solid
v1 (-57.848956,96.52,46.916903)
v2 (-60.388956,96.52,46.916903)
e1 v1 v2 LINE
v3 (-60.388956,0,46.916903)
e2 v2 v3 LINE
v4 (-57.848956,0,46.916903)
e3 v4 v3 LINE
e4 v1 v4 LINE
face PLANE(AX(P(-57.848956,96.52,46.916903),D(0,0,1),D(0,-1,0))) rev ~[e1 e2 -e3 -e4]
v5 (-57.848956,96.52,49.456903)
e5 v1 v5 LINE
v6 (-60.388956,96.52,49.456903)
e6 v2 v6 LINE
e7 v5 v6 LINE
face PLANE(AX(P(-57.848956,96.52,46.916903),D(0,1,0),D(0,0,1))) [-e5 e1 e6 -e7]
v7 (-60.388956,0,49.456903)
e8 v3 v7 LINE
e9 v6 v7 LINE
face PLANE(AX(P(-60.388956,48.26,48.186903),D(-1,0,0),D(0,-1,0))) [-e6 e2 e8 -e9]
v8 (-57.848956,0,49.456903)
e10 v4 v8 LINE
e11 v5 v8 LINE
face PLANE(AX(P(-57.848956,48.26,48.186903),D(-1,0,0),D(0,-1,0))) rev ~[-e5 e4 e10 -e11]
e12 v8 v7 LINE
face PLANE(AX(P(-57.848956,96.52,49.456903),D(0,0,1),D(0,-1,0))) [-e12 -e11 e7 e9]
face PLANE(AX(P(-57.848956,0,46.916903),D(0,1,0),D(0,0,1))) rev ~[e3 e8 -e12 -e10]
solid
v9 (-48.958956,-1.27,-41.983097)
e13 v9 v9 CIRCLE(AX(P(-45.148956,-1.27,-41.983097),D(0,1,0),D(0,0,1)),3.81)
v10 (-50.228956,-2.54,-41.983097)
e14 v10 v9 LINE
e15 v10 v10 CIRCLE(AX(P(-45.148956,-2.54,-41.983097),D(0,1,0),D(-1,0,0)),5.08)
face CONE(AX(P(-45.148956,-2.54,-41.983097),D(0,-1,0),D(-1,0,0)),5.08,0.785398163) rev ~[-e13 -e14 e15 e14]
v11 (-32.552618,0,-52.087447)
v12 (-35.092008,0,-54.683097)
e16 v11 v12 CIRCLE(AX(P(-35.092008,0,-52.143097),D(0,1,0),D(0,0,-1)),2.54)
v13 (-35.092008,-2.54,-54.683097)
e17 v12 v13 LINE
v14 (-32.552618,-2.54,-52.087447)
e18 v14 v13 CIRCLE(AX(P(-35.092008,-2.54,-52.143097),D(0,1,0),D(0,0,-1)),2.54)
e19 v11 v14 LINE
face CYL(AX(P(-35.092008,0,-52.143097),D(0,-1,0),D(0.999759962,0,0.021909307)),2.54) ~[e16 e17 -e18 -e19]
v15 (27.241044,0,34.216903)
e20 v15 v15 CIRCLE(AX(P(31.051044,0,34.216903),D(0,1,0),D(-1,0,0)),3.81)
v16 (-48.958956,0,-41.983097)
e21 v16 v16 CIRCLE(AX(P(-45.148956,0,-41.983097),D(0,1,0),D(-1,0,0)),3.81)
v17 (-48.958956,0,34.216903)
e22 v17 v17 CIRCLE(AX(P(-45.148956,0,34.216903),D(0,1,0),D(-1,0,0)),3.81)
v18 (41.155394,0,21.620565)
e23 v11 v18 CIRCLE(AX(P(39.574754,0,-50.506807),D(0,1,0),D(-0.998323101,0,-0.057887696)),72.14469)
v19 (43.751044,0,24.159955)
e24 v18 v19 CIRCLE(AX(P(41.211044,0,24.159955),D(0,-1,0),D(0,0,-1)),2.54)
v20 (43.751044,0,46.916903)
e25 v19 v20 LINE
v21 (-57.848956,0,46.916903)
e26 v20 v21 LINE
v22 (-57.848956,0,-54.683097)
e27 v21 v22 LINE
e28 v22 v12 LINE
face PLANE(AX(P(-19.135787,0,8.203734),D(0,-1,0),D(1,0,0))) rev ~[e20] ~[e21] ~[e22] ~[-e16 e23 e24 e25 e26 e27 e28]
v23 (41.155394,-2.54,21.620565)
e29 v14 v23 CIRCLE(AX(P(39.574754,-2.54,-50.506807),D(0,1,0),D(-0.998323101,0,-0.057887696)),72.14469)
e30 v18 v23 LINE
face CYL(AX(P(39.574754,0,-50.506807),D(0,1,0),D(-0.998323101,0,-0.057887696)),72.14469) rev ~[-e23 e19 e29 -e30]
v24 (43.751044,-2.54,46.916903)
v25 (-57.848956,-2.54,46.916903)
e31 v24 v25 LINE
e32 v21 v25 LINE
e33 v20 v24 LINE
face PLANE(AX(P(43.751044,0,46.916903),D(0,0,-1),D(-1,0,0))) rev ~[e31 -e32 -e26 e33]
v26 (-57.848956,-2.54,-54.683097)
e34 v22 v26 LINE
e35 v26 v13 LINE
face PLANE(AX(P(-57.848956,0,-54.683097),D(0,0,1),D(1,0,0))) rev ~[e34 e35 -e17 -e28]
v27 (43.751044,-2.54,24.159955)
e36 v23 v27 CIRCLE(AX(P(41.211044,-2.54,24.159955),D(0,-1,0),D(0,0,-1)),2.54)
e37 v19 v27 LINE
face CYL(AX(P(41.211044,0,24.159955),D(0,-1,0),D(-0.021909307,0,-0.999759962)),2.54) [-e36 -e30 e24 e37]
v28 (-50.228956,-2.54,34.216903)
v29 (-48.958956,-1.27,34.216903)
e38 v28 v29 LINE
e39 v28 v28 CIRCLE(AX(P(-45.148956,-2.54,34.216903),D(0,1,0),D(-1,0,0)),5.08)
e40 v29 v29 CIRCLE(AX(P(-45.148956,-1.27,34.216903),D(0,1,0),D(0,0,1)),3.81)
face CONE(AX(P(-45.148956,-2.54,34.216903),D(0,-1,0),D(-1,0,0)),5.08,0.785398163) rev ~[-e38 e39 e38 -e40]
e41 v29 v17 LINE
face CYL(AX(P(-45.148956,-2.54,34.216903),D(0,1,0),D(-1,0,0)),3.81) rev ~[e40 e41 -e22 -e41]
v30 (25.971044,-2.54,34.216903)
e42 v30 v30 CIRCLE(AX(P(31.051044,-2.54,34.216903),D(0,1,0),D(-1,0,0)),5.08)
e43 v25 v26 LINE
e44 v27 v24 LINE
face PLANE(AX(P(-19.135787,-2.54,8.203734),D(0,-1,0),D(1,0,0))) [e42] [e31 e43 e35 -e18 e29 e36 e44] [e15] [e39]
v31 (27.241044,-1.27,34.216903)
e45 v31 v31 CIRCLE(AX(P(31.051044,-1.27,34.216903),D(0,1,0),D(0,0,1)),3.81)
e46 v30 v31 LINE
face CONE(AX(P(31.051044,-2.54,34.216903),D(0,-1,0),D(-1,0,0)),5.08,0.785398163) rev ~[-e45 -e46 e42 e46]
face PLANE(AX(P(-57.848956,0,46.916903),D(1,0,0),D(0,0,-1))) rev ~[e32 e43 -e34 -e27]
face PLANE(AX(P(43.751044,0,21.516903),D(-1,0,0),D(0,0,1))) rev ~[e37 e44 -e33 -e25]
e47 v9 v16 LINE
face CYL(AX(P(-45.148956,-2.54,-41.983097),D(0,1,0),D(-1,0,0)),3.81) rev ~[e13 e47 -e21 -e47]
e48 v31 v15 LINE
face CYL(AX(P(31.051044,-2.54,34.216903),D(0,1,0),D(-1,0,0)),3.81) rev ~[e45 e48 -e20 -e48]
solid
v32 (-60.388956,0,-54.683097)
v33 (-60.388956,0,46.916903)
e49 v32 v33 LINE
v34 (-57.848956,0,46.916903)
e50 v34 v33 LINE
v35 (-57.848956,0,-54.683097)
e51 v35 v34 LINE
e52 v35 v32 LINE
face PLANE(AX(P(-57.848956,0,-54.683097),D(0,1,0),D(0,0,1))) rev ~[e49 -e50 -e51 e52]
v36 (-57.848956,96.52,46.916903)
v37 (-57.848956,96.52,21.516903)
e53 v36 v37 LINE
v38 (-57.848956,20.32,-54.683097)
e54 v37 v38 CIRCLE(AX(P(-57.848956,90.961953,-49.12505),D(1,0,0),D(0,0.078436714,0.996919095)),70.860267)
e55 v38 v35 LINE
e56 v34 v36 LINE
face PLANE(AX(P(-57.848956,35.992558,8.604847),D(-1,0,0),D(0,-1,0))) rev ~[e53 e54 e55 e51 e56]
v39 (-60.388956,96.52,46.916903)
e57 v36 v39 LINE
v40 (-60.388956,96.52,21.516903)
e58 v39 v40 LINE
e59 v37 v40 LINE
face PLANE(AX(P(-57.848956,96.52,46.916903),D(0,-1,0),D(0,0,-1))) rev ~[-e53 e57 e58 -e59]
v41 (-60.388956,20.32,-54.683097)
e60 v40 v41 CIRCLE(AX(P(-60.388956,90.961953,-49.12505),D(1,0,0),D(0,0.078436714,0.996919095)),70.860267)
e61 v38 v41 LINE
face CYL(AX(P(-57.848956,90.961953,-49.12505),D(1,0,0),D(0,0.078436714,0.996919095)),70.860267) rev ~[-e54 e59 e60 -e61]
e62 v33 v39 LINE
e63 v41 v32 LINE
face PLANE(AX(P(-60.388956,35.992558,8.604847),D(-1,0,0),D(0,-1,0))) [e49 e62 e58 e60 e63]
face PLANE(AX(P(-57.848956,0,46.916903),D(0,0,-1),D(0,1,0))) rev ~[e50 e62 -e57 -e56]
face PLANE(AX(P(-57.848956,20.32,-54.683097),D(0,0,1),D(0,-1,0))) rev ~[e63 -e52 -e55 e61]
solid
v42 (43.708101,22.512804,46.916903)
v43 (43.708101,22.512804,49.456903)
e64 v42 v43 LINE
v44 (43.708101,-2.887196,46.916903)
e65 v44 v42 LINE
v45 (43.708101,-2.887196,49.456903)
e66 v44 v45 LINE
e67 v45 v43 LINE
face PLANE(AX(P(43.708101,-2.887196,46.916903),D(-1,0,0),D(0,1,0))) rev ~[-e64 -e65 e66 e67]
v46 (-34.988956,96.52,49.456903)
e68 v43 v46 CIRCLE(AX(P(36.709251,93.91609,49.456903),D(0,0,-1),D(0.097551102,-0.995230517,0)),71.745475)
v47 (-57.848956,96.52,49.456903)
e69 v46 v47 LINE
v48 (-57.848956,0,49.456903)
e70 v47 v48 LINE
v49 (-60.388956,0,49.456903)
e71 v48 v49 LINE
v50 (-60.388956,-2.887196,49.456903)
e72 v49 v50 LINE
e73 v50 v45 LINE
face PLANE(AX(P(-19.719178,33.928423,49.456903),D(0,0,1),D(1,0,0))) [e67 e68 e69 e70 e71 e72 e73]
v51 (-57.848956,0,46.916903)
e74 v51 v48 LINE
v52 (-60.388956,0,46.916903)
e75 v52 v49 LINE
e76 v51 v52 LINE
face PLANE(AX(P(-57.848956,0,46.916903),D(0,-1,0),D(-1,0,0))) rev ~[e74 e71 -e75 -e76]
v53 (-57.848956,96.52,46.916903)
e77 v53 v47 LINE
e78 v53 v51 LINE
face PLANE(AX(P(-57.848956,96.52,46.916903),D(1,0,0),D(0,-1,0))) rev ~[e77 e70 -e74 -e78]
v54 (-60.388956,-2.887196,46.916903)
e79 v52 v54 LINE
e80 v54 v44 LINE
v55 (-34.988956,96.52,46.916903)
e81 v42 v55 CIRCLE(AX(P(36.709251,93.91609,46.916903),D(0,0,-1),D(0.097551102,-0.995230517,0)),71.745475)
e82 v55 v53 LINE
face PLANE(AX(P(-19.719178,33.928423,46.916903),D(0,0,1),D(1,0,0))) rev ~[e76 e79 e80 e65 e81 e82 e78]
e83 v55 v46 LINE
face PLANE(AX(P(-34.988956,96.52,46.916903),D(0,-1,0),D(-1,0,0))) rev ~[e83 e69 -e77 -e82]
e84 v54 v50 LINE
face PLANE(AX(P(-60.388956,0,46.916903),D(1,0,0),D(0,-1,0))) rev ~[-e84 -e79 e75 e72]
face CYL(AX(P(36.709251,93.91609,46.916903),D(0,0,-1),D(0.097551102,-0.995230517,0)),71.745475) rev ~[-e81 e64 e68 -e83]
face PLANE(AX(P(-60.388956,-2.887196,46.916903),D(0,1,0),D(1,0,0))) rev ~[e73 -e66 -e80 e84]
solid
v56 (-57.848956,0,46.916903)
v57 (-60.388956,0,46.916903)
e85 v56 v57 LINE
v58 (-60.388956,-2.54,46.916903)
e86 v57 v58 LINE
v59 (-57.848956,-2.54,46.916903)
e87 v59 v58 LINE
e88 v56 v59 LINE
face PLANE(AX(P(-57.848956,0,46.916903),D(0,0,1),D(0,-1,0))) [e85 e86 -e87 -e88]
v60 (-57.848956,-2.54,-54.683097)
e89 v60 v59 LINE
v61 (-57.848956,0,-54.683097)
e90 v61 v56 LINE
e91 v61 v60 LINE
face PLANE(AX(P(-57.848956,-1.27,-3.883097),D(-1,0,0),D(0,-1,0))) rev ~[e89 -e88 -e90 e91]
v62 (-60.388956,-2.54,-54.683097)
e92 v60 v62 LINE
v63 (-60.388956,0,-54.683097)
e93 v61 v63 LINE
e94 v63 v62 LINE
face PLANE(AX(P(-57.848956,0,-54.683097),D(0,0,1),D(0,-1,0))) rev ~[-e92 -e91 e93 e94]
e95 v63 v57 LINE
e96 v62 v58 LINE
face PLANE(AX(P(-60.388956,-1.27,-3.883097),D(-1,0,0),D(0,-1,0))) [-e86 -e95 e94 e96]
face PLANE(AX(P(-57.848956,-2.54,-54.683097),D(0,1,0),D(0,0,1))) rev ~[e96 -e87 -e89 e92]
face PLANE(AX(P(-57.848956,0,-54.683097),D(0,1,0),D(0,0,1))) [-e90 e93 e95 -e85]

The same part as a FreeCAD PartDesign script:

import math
import FreeCAD as App
import Part
import Sketcher
from FreeCAD import Vector
Q = App.Units.Quantity


def edges_at(feature, points):
    """Names of the edges that pass closest to the given points."""
    edges = feature.Shape.Edges
    near = lambda p: min(range(len(edges)), key=lambda i: edges[i].distToShape(Part.Vertex(*p))[0])
    return sorted({f"Edge{near(p) + 1}" for p in points})

doc = App.newDocument("Part")
body = doc.addObject("PartDesign::Body", "Body")

sketch1 = doc.addObject("Sketcher::SketchObject", "Sketch")
body.addObject(sketch1)
sketch1.AttachmentSupport = (doc.XZ_Plane, [""])
sketch1.MapMode = "FlatFace"
sketch1.addGeometry([
    Part.LineSegment(Vector(43.751044, 46.916903, 0), Vector(-57.848956, 46.916903, 0)),
    Part.LineSegment(Vector(-57.848956, 46.916903, 0), Vector(-57.848956, -54.683097, 0)),
    Part.LineSegment(Vector(-57.848956, -54.683097, 0), Vector(-32.448956, -54.683097, 0)),
    Part.ArcOfCircle(Part.Circle(Vector(39.574754, -50.506807, 0), Vector(0, 0, 1), 72.14469), math.radians(86.681424), math.radians(183.318576)),
    Part.LineSegment(Vector(43.751044, 21.516903, 0), Vector(43.751044, 46.916903, 0)),
], False)
sketch1.addConstraint([
    Sketcher.Constraint("Coincident", 0, 2, 1, 1),
    Sketcher.Constraint("Coincident", 1, 2, 2, 1),
    Sketcher.Constraint("Coincident", 2, 2, 3, 2),
    Sketcher.Constraint("Coincident", 3, 1, 4, 1),
    Sketcher.Constraint("Coincident", 4, 2, 0, 1),
    Sketcher.Constraint("Horizontal", 0),
    Sketcher.Constraint("Vertical", 1),
    Sketcher.Constraint("Horizontal", 2),
    Sketcher.Constraint("Vertical", 4),
    Sketcher.Constraint("Equal", 0, 1),
    Sketcher.Constraint("Equal", 2, 4),
    Sketcher.Constraint("DistanceX", 0, 2, 0, 1, Q("4 in")),
    Sketcher.Constraint("DistanceX", 2, 1, 2, 2, Q("1 in")),
    Sketcher.Constraint("Radius", 3, 72.14469),
    Sketcher.Constraint("DistanceX", -1, 1, 3, 3, 39.574754),
    Sketcher.Constraint("DistanceY", 3, 3, -1, 1, 50.506807),
])
pad1 = doc.addObject("PartDesign::Pad", "Pad")
body.addObject(pad1)
pad1.Profile = sketch1
pad1.Length = Q("0.1 in")
doc.recompute()

fillet = doc.addObject("PartDesign::Fillet", "Fillet")
body.addObject(fillet)
fillet.Base = (pad1, edges_at(pad1, [(43.751, -1.27, 21.517)]))
fillet.Radius = Q("0.1 in")
doc.recompute()

fillet2 = doc.addObject("PartDesign::Fillet", "Fillet001")
body.addObject(fillet2)
fillet2.Base = (fillet, edges_at(fillet, [(-32.449, -1.27, -54.683)]))
fillet2.Radius = Q("0.1 in")

sketch2 = doc.addObject("Sketcher::SketchObject", "Sketch001")
body.addObject(sketch2)
sketch2.AttachmentSupport = (doc.XZ_Plane, [""])
sketch2.MapMode = "FlatFace"
sketch2.AttachmentOffset = App.Placement(Vector(0, 0, 0.1 * 25.4), App.Rotation())
sketch2.addGeometry([
    Part.Circle(Vector(-45.148956, 34.216903, 0), Vector(0, 0, 1), 3.81),
    Part.Circle(Vector(31.051044, 34.216903, 0), Vector(0, 0, 1), 3.81),
    Part.Circle(Vector(-45.148956, -41.983097, 0), Vector(0, 0, 1), 3.81),
], False)
sketch2.addConstraint([
    Sketcher.Constraint("Equal", 0, 1),
    Sketcher.Constraint("Equal", 1, 2),
    Sketcher.Constraint("Horizontal", 0, 3, 1, 3),
    Sketcher.Constraint("Vertical", 0, 3, 2, 3),
    Sketcher.Constraint("Diameter", 0, Q("0.3 in")),
    Sketcher.Constraint("DistanceX", 0, 3, 1, 3, Q("3 in")),
    Sketcher.Constraint("DistanceY", 2, 3, 0, 3, Q("3 in")),
    Sketcher.Constraint("DistanceX", 0, 3, -1, 1, 45.148956),
    Sketcher.Constraint("DistanceY", -1, 1, 0, 3, 34.216903),
])
doc.recompute()
hole = doc.addObject("PartDesign::Hole", "Hole")
body.addObject(hole)
hole.Profile = sketch2
hole.ThreadType = "None"
hole.Diameter = Q("0.3 in")
hole.DepthType = "Dimension"
hole.Depth = Q("1 in")
hole.DrillPoint = "Flat"
hole.HoleCutType = "Countersink"
hole.HoleCutDiameter = Q("0.4 in")
hole.HoleCutCountersinkAngle = 90
body2 = doc.addObject("PartDesign::Body", "Body001")

sketch3 = doc.addObject("Sketcher::SketchObject", "Sketch002")
body2.addObject(sketch3)
sketch3.AttachmentSupport = (doc.getObject("YZ_Plane001"), [""])
sketch3.MapMode = "FlatFace"
sketch3.AttachmentOffset = App.Placement(Vector(0, 0, -57.848956), App.Rotation())
sketch3.addGeometry([
    Part.LineSegment(Vector(0, -54.683097, 0), Vector(0, 46.916903, 0)),
    Part.LineSegment(Vector(0, 46.916903, 0), Vector(96.52, 46.916903, 0)),
    Part.LineSegment(Vector(96.52, 46.916903, 0), Vector(96.52, 21.516903, 0)),
    Part.ArcOfCircle(Part.Circle(Vector(90.961953, -49.12505, 0), Vector(0, 0, 1), 70.860267), math.radians(85.501286), math.radians(184.498714)),
    Part.LineSegment(Vector(20.32, -54.683097, 0), Vector(0, -54.683097, 0)),
], False)
sketch3.addConstraint([
    Sketcher.Constraint("Coincident", 0, 2, 1, 1),
    Sketcher.Constraint("Coincident", 1, 2, 2, 1),
    Sketcher.Constraint("Coincident", 2, 2, 3, 1),
    Sketcher.Constraint("Coincident", 3, 2, 4, 1),
    Sketcher.Constraint("Coincident", 4, 2, 0, 1),
    Sketcher.Constraint("Vertical", 0),
    Sketcher.Constraint("Horizontal", 1),
    Sketcher.Constraint("Vertical", 2),
    Sketcher.Constraint("Horizontal", 4),
    Sketcher.Constraint("PointOnObject", 0, 2, -2),
    Sketcher.Constraint("DistanceY", 0, 1, 0, 2, Q("4 in")),
    Sketcher.Constraint("DistanceY", 2, 2, 2, 1, Q("1 in")),
    Sketcher.Constraint("DistanceX", 1, 1, 1, 2, Q("3.8 in")),
    Sketcher.Constraint("DistanceX", 4, 2, 4, 1, Q("0.8 in")),
    Sketcher.Constraint("Radius", 3, 70.860267),
    Sketcher.Constraint("DistanceY", 3, 3, -1, 1, 49.12505),
])
pad2 = doc.addObject("PartDesign::Pad", "Pad001")
body2.addObject(pad2)
pad2.Profile = sketch3
pad2.Length = Q("0.1 in")
pad2.Reversed = True
body3 = doc.addObject("PartDesign::Body", "Body002")

sketch4 = doc.addObject("Sketcher::SketchObject", "Sketch003")
body3.addObject(sketch4)
sketch4.AttachmentSupport = (doc.getObject("YZ_Plane002"), [""])
sketch4.MapMode = "FlatFace"
sketch4.AttachmentOffset = App.Placement(Vector(0, 0, -57.848956), App.Rotation())
sketch4.addGeometry([
    Part.LineSegment(Vector(0, 46.916903, 0), Vector(0, -54.683097, 0)),
    Part.LineSegment(Vector(0, -54.683097, 0), Vector(-2.54, -54.683097, 0)),
    Part.LineSegment(Vector(-2.54, -54.683097, 0), Vector(-2.54, 46.916903, 0)),
    Part.LineSegment(Vector(-2.54, 46.916903, 0), Vector(0, 46.916903, 0)),
], False)
sketch4.addConstraint([
    Sketcher.Constraint("Coincident", 0, 2, 1, 1),
    Sketcher.Constraint("Coincident", 1, 2, 2, 1),
    Sketcher.Constraint("Coincident", 2, 2, 3, 1),
    Sketcher.Constraint("Coincident", 3, 2, 0, 1),
    Sketcher.Constraint("Vertical", 0),
    Sketcher.Constraint("Horizontal", 1),
    Sketcher.Constraint("Vertical", 2),
    Sketcher.Constraint("Horizontal", 3),
    Sketcher.Constraint("PointOnObject", 0, 2, -2),
    Sketcher.Constraint("DistanceY", 0, 2, 0, 1, Q("4 in")),
    Sketcher.Constraint("DistanceX", 1, 2, 1, 1, Q("0.1 in")),
    Sketcher.Constraint("DistanceY", 0, 2, -1, 1, 54.683097),
])
pad3 = doc.addObject("PartDesign::Pad", "Pad002")
body3.addObject(pad3)
pad3.Profile = sketch4
pad3.Length = Q("0.1 in")
pad3.Reversed = True
body4 = doc.addObject("PartDesign::Body", "Body003")

sketch5 = doc.addObject("Sketcher::SketchObject", "Sketch004")
body4.addObject(sketch5)
sketch5.AttachmentSupport = (doc.getObject("XY_Plane003"), [""])
sketch5.MapMode = "FlatFace"
sketch5.AttachmentOffset = App.Placement(Vector(0, 0, 46.916903), App.Rotation())
sketch5.addGeometry([
    Part.LineSegment(Vector(-57.848956, 0, 0), Vector(-60.388956, 0, 0)),
    Part.LineSegment(Vector(-60.388956, 0, 0), Vector(-60.388956, -2.887196, 0)),
    Part.LineSegment(Vector(-60.388956, -2.887196, 0), Vector(43.708101, -2.887196, 0)),
    Part.LineSegment(Vector(43.708101, -2.887196, 0), Vector(43.708101, 22.512804, 0)),
    Part.ArcOfCircle(Part.Circle(Vector(36.709251, 93.91609, 0), Vector(0, 0, 1), 71.745475), math.radians(177.920067), math.radians(275.598169)),
    Part.LineSegment(Vector(-34.988956, 96.52, 0), Vector(-57.848956, 96.52, 0)),
    Part.LineSegment(Vector(-57.848956, 96.52, 0), Vector(-57.848956, 0, 0)),
], False)
sketch5.addConstraint([
    Sketcher.Constraint("Coincident", 0, 2, 1, 1),
    Sketcher.Constraint("Coincident", 1, 2, 2, 1),
    Sketcher.Constraint("Coincident", 2, 2, 3, 1),
    Sketcher.Constraint("Coincident", 3, 2, 4, 2),
    Sketcher.Constraint("Coincident", 4, 1, 5, 1),
    Sketcher.Constraint("Coincident", 5, 2, 6, 1),
    Sketcher.Constraint("Coincident", 6, 2, 0, 1),
    Sketcher.Constraint("Horizontal", 0),
    Sketcher.Constraint("Vertical", 1),
    Sketcher.Constraint("Horizontal", 2),
    Sketcher.Constraint("Vertical", 3),
    Sketcher.Constraint("Horizontal", 5),
    Sketcher.Constraint("Vertical", 6),
    Sketcher.Constraint("PointOnObject", 0, 2, -1),
    Sketcher.Constraint("DistanceY", 3, 1, 3, 2, Q("1 in")),
    Sketcher.Constraint("DistanceX", 0, 2, 0, 1, Q("0.1 in")),
    Sketcher.Constraint("DistanceX", 5, 2, 5, 1, Q("0.9 in")),
    Sketcher.Constraint("DistanceY", 6, 2, 6, 1, Q("3.8 in")),
    Sketcher.Constraint("Radius", 4, 71.745475),
    Sketcher.Constraint("DistanceX", -1, 1, 2, 2, 43.708101),
    Sketcher.Constraint("DistanceX", 2, 1, 2, 2, 104.097057),
    Sketcher.Constraint("DistanceY", 1, 2, 1, 1, 2.887196),
])
pad4 = doc.addObject("PartDesign::Pad", "Pad003")
body4.addObject(pad4)
pad4.Profile = sketch5
pad4.Length = Q("0.1 in")
body5 = doc.addObject("PartDesign::Body", "Body004")

sketch6 = doc.addObject("Sketcher::SketchObject", "Sketch005")
body5.addObject(sketch6)
sketch6.AttachmentSupport = (doc.getObject("YZ_Plane004"), [""])
sketch6.MapMode = "FlatFace"
sketch6.AttachmentOffset = App.Placement(Vector(0, 0, -57.848956), App.Rotation())
sketch6.addGeometry([
    Part.LineSegment(Vector(96.52, 49.456903, 0), Vector(96.52, 46.916903, 0)),
    Part.LineSegment(Vector(96.52, 46.916903, 0), Vector(0, 46.916903, 0)),
    Part.LineSegment(Vector(0, 46.916903, 0), Vector(0, 49.456903, 0)),
    Part.LineSegment(Vector(0, 49.456903, 0), Vector(96.52, 49.456903, 0)),
], False)
sketch6.addConstraint([
    Sketcher.Constraint("Coincident", 0, 2, 1, 1),
    Sketcher.Constraint("Coincident", 1, 2, 2, 1),
    Sketcher.Constraint("Coincident", 2, 2, 3, 1),
    Sketcher.Constraint("Coincident", 3, 2, 0, 1),
    Sketcher.Constraint("Vertical", 0),
    Sketcher.Constraint("Horizontal", 1),
    Sketcher.Constraint("Vertical", 2),
    Sketcher.Constraint("Horizontal", 3),
    Sketcher.Constraint("PointOnObject", 1, 2, -2),
    Sketcher.Constraint("DistanceX", 1, 2, 1, 1, Q("3.8 in")),
    Sketcher.Constraint("DistanceY", 0, 2, 0, 1, Q("0.1 in")),
    Sketcher.Constraint("DistanceY", -1, 1, 0, 2, 46.916903),
])
pad5 = doc.addObject("PartDesign::Pad", "Pad004")
body5.addObject(pad5)
pad5.Profile = sketch6
pad5.Length = Q("0.1 in")
pad5.Reversed = True

doc.recompute()
